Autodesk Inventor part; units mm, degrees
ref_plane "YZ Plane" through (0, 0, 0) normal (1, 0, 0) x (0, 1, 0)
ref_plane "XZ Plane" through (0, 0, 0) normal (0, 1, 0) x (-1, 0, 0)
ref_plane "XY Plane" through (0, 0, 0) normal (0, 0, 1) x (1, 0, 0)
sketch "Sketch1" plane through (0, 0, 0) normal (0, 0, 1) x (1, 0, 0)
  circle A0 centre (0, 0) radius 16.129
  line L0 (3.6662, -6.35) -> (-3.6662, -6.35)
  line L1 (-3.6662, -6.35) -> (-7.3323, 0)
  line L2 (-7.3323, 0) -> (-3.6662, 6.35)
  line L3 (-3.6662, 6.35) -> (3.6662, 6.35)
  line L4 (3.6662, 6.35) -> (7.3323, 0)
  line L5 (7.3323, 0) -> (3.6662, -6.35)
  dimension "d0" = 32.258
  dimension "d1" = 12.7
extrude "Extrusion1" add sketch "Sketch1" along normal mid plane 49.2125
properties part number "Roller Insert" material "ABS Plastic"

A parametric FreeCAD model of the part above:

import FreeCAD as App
import Part
import Sketcher

V = App.Vector
Q = App.Units.Quantity


def add_polygon(sketch, points):
    """Adds a closed chain of lines whose ends are joined by coincident constraints."""
    first, n = sketch.GeometryCount, len(points)
    for a, b in zip(points, points[1:] + points[:1]):
        sketch.addGeometry(Part.LineSegment(App.Vector(*a, 0), App.Vector(*b, 0)), False)
    for i in range(n):
        sketch.addConstraint(Sketcher.Constraint("Coincident", first + i, 2, first + (i + 1) % n, 1))

doc = App.newDocument("Part")
body = doc.addObject("PartDesign::Body", "Body")

# Sketch on XY plane
sketch1 = body.newObject("Sketcher::SketchObject", "Sketch")
sketch1.AttachmentSupport = (doc.getObject("XY_Plane"), [""])
sketch1.MapMode = "FlatFace"
sketch1.addGeometry(Part.Circle(V(0, 0, 0), V(0, 0, 1), 16), False)  # 0
add_polygon(sketch1, [(7, 0), (4, -6), (-4, -6), (-7, 0), (-4, 6), (4, 6)])  # lines 1-6
sketch1.addConstraint(Sketcher.Constraint("Horizontal", 2))
sketch1.addConstraint(Sketcher.Constraint("Horizontal", 5))
sketch1.addConstraint(Sketcher.Constraint("Coincident", 0, 3, -1, 1))
sketch1.addConstraint(Sketcher.Constraint("Symmetric", 1, 2, 4, 2, -1, 1))
sketch1.addConstraint(Sketcher.Constraint("Symmetric", 3, 2, 6, 2, -1, 1))
sketch1.addConstraint(Sketcher.Constraint("PointOnObject", 3, 2, -1))
sketch1.addConstraint(Sketcher.Constraint("Parallel", 3, 6))
sketch1.addConstraint(Sketcher.Constraint("Vertical", 2, 2, 4, 2))
sketch1.addConstraint(Sketcher.Constraint("Diameter", 0, Q("1.27 in")))
sketch1.addConstraint(Sketcher.Constraint("DistanceY", 2, 2, 4, 2, Q("0.5 in")))
sketch1.addConstraint(Sketcher.Constraint("Angle", 1, Q("-119.9995 deg")))
sketch1.addConstraint(Sketcher.Constraint("DistanceX", 3, 2, 1, 2, Q("0.433 in")))
pad1 = body.newObject("PartDesign::Pad", "Pad")
pad1.Profile = sketch1
pad1.Length = Q("1.9375 in")
pad1.Midplane = True

doc.recompute()
